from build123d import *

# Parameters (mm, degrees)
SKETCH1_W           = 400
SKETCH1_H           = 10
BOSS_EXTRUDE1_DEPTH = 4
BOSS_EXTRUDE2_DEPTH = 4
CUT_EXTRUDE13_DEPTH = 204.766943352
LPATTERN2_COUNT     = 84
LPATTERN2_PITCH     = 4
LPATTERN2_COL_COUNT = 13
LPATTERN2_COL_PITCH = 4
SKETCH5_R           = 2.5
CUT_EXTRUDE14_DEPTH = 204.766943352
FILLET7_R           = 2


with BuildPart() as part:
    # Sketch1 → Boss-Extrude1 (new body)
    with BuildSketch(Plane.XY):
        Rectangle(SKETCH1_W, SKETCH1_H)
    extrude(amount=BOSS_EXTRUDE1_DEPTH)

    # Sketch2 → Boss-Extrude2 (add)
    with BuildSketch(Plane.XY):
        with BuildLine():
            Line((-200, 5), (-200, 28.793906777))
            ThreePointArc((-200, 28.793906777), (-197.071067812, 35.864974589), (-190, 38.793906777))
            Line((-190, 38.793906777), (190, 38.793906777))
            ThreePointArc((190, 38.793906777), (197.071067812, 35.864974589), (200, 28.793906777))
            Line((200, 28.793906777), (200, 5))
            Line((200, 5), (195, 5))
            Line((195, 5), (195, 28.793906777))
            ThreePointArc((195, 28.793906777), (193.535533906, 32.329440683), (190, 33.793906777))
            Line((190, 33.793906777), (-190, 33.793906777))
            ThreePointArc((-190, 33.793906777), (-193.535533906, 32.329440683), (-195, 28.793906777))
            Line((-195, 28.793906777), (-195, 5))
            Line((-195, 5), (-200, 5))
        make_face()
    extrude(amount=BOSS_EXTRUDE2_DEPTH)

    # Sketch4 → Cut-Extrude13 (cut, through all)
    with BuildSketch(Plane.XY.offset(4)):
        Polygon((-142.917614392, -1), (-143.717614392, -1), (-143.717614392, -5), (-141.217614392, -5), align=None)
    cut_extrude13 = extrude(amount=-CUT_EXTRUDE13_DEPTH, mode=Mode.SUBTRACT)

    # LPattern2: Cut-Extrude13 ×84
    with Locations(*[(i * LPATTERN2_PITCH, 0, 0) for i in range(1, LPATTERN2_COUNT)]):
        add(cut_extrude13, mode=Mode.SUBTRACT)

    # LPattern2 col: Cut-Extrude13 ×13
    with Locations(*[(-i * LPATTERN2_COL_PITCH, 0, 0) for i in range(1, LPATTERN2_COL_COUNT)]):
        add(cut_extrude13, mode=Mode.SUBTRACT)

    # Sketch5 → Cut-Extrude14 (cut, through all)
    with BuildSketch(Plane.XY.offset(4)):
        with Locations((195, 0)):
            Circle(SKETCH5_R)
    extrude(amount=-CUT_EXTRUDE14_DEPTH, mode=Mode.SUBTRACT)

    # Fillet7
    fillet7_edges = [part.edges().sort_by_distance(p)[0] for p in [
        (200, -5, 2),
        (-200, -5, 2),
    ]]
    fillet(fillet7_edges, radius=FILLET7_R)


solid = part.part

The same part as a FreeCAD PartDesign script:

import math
import FreeCAD as App
import Part
import Sketcher
from FreeCAD import Vector


def edges_at(feature, points):
    """Names of the edges that pass closest to the given points."""
    edges = feature.Shape.Edges
    near = lambda p: min(range(len(edges)), key=lambda i: edges[i].distToShape(Part.Vertex(*p))[0])
    return sorted({f"Edge{near(p) + 1}" for p in points})

doc = App.newDocument("Part")
params = doc.addObject("Spreadsheet::Sheet", "Params")
for row, (alias, value) in enumerate([
    ("sketch1_width", "400 mm"),
    ("sketch1_height", "10 mm"),
    ("pad1_length", "4 mm"),
    ("sketch2_radius", "5 mm"),
    ("sketch2_radius2", "10 mm"),
    ("sketch2_width", "380 mm"),
    ("pad2_length", "4 mm"),
    ("sketch3_height", "4 mm"),
    ("sketch3_width", "0.8 mm"),
    ("sketch3_width2", "2.5 mm"),
    ("linearpattern_pitch", "4 mm"),
    ("linearpattern2_pitch", "4 mm"),
    ("sketch4_diameter", "5 mm"),
    ("fillet_radius", "2 mm"),
], start=1):
    params.set(f"A{row}", alias)
    params.set(f"B{row}", "=" + value)
    params.setAlias(f"B{row}", alias)

body = doc.addObject("PartDesign::Body", "Body")

sketch1 = body.newObject("Sketcher::SketchObject", "Sketch")
sketch1.AttachmentSupport = (doc.getObject("XY_Plane"), [""])
sketch1.MapMode = "FlatFace"
sketch1.addGeometry(Part.LineSegment(Vector(-200, 5, 0), Vector(-200, -5, 0)), False)
sketch1.addGeometry(Part.LineSegment(Vector(-200, -5, 0), Vector(200, -5, 0)), False)
sketch1.addGeometry(Part.LineSegment(Vector(200, -5, 0), Vector(200, 5, 0)), False)
sketch1.addGeometry(Part.LineSegment(Vector(200, 5, 0), Vector(-200, 5, 0)), False)
sketch1.addConstraint(Sketcher.Constraint("Coincident", 0, 2, 1, 1))
sketch1.addConstraint(Sketcher.Constraint("Coincident", 1, 2, 2, 1))
sketch1.addConstraint(Sketcher.Constraint("Coincident", 2, 2, 3, 1))
sketch1.addConstraint(Sketcher.Constraint("Coincident", 3, 2, 0, 1))
sketch1.addConstraint(Sketcher.Constraint("Vertical", 0))
sketch1.addConstraint(Sketcher.Constraint("Horizontal", 1))
sketch1.addConstraint(Sketcher.Constraint("Vertical", 2))
sketch1.addConstraint(Sketcher.Constraint("Horizontal", 3))
sketch1.addConstraint(Sketcher.Constraint("Symmetric", 0, 2, 2, 2, -1, 1))
sketch1.addConstraint(Sketcher.Constraint("DistanceX", 1, 1, 1, 2, 400.0))
sketch1.addConstraint(Sketcher.Constraint("DistanceY", 0, 2, 0, 1, 10.0))
sketch1.setExpression("Constraints[9]", "Params.sketch1_width")
sketch1.setExpression("Constraints[10]", "Params.sketch1_height")
pad1 = body.newObject("PartDesign::Pad", "Pad")
pad1.Profile = sketch1
pad1.setExpression("Length", "Params.pad1_length")

sketch2 = body.newObject("Sketcher::SketchObject", "Sketch001")
sketch2.AttachmentSupport = (doc.getObject("XY_Plane"), [""])
sketch2.MapMode = "FlatFace"
sketch2.addGeometry(Part.LineSegment(Vector(-200, 29, 0), Vector(-200, 5, 0)), False)
sketch2.addGeometry(Part.LineSegment(Vector(-200, 5, 0), Vector(-195, 5, 0)), False)
sketch2.addGeometry(Part.LineSegment(Vector(-195, 5, 0), Vector(-195, 29, 0)), False)
sketch2.addGeometry(Part.ArcOfCircle(Part.Circle(Vector(-190, 29, 0), Vector(0, 0, 1), 5), math.radians(90), math.radians(180)), False)
sketch2.addGeometry(Part.LineSegment(Vector(-190, 34, 0), Vector(190, 34, 0)), False)
sketch2.addGeometry(Part.ArcOfCircle(Part.Circle(Vector(190, 29, 0), Vector(0, 0, 1), 5), math.radians(0), math.radians(90)), False)
sketch2.addGeometry(Part.LineSegment(Vector(195, 29, 0), Vector(195, 5, 0)), False)
sketch2.addGeometry(Part.LineSegment(Vector(195, 5, 0), Vector(200, 5, 0)), False)
sketch2.addGeometry(Part.LineSegment(Vector(200, 5, 0), Vector(200, 29, 0)), False)
sketch2.addGeometry(Part.ArcOfCircle(Part.Circle(Vector(190, 29, 0), Vector(0, 0, 1), 10), math.radians(0), math.radians(90)), False)
sketch2.addGeometry(Part.LineSegment(Vector(190, 39, 0), Vector(-190, 39, 0)), False)
sketch2.addGeometry(Part.ArcOfCircle(Part.Circle(Vector(-190, 29, 0), Vector(0, 0, 1), 10), math.radians(90), math.radians(180)), False)
sketch2.addConstraint(Sketcher.Constraint("Coincident", 0, 2, 1, 1))
sketch2.addConstraint(Sketcher.Constraint("Coincident", 1, 2, 2, 1))
sketch2.addConstraint(Sketcher.Constraint("Tangent", 2, 2, 3, 2))
sketch2.addConstraint(Sketcher.Constraint("Tangent", 3, 1, 4, 1))
sketch2.addConstraint(Sketcher.Constraint("Tangent", 4, 2, 5, 2))
sketch2.addConstraint(Sketcher.Constraint("Tangent", 5, 1, 6, 1))
sketch2.addConstraint(Sketcher.Constraint("Coincident", 6, 2, 7, 1))
sketch2.addConstraint(Sketcher.Constraint("Coincident", 7, 2, 8, 1))
sketch2.addConstraint(Sketcher.Constraint("Tangent", 8, 2, 9, 1))
sketch2.addConstraint(Sketcher.Constraint("Tangent", 9, 2, 10, 1))
sketch2.addConstraint(Sketcher.Constraint("Tangent", 10, 2, 11, 1))
sketch2.addConstraint(Sketcher.Constraint("Tangent", 11, 2, 0, 1))
sketch2.addConstraint(Sketcher.Constraint("Vertical", 0))
sketch2.addConstraint(Sketcher.Constraint("Horizontal", 1))
sketch2.addConstraint(Sketcher.Constraint("Vertical", 2))
sketch2.addConstraint(Sketcher.Constraint("Horizontal", 4))
sketch2.addConstraint(Sketcher.Constraint("Vertical", 6))
sketch2.addConstraint(Sketcher.Constraint("Horizontal", 7))
sketch2.addConstraint(Sketcher.Constraint("Vertical", 8))
sketch2.addConstraint(Sketcher.Constraint("Horizontal", 10))
sketch2.addConstraint(Sketcher.Constraint("Coincident", 9, 3, 5, 3))
sketch2.addConstraint(Sketcher.Constraint("Coincident", 11, 3, 3, 3))
sketch2.addConstraint(Sketcher.Constraint("Equal", 3, 5))
sketch2.addConstraint(Sketcher.Constraint("Symmetric", 1, 2, 6, 2, -2))
sketch2.addConstraint(Sketcher.Constraint("Radius", 3, 5.0))
sketch2.addConstraint(Sketcher.Constraint("Radius", 9, 10.0))
sketch2.addConstraint(Sketcher.Constraint("DistanceX", 4, 1, 4, 2, 380.0))
sketch2.addConstraint(Sketcher.Constraint("DistanceY", -1, 1, 0, 2, 5.0))
sketch2.addConstraint(Sketcher.Constraint("DistanceY", 0, 2, 0, 1, 23.793907))
sketch2.setExpression("Constraints[24]", "Params.sketch2_radius")
sketch2.setExpression("Constraints[25]", "Params.sketch2_radius2")
sketch2.setExpression("Constraints[26]", "Params.sketch2_width")
pad2 = body.newObject("PartDesign::Pad", "Pad001")
pad2.Profile = sketch2
pad2.setExpression("Length", "Params.pad2_length")

sketch3 = body.newObject("Sketcher::SketchObject", "Sketch002")
sketch3.AttachmentSupport = (doc.getObject("XY_Plane"), [""])
sketch3.MapMode = "FlatFace"
sketch3.AttachmentOffset = App.Placement(Vector(0, 0, 4), App.Rotation())
sketch3.addGeometry(Part.LineSegment(Vector(-142.9, -1, 0), Vector(-143.7, -1, 0)), False)
sketch3.addGeometry(Part.LineSegment(Vector(-143.7, -1, 0), Vector(-143.7, -5, 0)), False)
sketch3.addGeometry(Part.LineSegment(Vector(-143.7, -5, 0), Vector(-141.2, -5, 0)), False)
sketch3.addGeometry(Part.LineSegment(Vector(-141.2, -5, 0), Vector(-142.9, -1, 0)), False)
sketch3.addConstraint(Sketcher.Constraint("Coincident", 0, 2, 1, 1))
sketch3.addConstraint(Sketcher.Constraint("Coincident", 1, 2, 2, 1))
sketch3.addConstraint(Sketcher.Constraint("Coincident", 2, 2, 3, 1))
sketch3.addConstraint(Sketcher.Constraint("Coincident", 3, 2, 0, 1))
sketch3.addConstraint(Sketcher.Constraint("Horizontal", 0))
sketch3.addConstraint(Sketcher.Constraint("Vertical", 1))
sketch3.addConstraint(Sketcher.Constraint("Horizontal", 2))
sketch3.addConstraint(Sketcher.Constraint("DistanceY", 1, 2, 1, 1, 4.0))
sketch3.addConstraint(Sketcher.Constraint("DistanceX", 0, 2, 0, 1, 0.8))
sketch3.addConstraint(Sketcher.Constraint("DistanceX", 2, 1, 2, 2, 2.5))
sketch3.addConstraint(Sketcher.Constraint("DistanceY", 0, 2, -1, 1, 1.0))
sketch3.addConstraint(Sketcher.Constraint("DistanceX", 0, 2, -1, 1, 143.717614))
sketch3.setExpression("Constraints[7]", "Params.sketch3_height")
sketch3.setExpression("Constraints[8]", "Params.sketch3_width")
sketch3.setExpression("Constraints[9]", "Params.sketch3_width2")
pocket1 = body.newObject("PartDesign::Pocket", "Pocket")
pocket1.Profile = sketch3
pocket1.Type = "ThroughAll"
doc.recompute()

linearpattern = body.newObject("PartDesign::LinearPattern", "LinearPattern")
linearpattern.Originals = [pocket1]
linearpattern.Direction = (doc.getObject("X_Axis"), [""])
linearpattern.Mode = "offset"
linearpattern.setExpression("Offset", "Params.linearpattern_pitch")
linearpattern.Occurrences = 84
body.Tip = linearpattern
doc.recompute()

linearpattern2 = body.newObject("PartDesign::LinearPattern", "LinearPattern001")
linearpattern2.Originals = [pocket1]
linearpattern2.Direction = (doc.getObject("X_Axis"), [""])
linearpattern2.Mode = "offset"
linearpattern2.setExpression("Offset", "Params.linearpattern2_pitch")
linearpattern2.Occurrences = 13
linearpattern2.Reversed = True
body.Tip = linearpattern2

sketch4 = body.newObject("Sketcher::SketchObject", "Sketch003")
sketch4.AttachmentSupport = (doc.getObject("XY_Plane"), [""])
sketch4.MapMode = "FlatFace"
sketch4.AttachmentOffset = App.Placement(Vector(0, 0, 4), App.Rotation())
sketch4.addGeometry(Part.Circle(Vector(195, 0, 0), Vector(0, 0, 1), 2.5), False)
sketch4.addConstraint(Sketcher.Constraint("PointOnObject", 0, 3, -1))
sketch4.addConstraint(Sketcher.Constraint("Diameter", 0, 5.0))
sketch4.addConstraint(Sketcher.Constraint("DistanceX", -1, 1, 0, 3, 195.0))
sketch4.setExpression("Constraints[1]", "Params.sketch4_diameter")
pocket2 = body.newObject("PartDesign::Pocket", "Pocket001")
pocket2.Profile = sketch4
pocket2.Type = "ThroughAll"
doc.recompute()

fillet = body.newObject("PartDesign::Fillet", "Fillet")
fillet.Base = (pocket2, edges_at(pocket2, [(200, -5, 2), (-200, -5, 2)]))
fillet.setExpression("Radius", "Params.fillet_radius")

doc.recompute()
